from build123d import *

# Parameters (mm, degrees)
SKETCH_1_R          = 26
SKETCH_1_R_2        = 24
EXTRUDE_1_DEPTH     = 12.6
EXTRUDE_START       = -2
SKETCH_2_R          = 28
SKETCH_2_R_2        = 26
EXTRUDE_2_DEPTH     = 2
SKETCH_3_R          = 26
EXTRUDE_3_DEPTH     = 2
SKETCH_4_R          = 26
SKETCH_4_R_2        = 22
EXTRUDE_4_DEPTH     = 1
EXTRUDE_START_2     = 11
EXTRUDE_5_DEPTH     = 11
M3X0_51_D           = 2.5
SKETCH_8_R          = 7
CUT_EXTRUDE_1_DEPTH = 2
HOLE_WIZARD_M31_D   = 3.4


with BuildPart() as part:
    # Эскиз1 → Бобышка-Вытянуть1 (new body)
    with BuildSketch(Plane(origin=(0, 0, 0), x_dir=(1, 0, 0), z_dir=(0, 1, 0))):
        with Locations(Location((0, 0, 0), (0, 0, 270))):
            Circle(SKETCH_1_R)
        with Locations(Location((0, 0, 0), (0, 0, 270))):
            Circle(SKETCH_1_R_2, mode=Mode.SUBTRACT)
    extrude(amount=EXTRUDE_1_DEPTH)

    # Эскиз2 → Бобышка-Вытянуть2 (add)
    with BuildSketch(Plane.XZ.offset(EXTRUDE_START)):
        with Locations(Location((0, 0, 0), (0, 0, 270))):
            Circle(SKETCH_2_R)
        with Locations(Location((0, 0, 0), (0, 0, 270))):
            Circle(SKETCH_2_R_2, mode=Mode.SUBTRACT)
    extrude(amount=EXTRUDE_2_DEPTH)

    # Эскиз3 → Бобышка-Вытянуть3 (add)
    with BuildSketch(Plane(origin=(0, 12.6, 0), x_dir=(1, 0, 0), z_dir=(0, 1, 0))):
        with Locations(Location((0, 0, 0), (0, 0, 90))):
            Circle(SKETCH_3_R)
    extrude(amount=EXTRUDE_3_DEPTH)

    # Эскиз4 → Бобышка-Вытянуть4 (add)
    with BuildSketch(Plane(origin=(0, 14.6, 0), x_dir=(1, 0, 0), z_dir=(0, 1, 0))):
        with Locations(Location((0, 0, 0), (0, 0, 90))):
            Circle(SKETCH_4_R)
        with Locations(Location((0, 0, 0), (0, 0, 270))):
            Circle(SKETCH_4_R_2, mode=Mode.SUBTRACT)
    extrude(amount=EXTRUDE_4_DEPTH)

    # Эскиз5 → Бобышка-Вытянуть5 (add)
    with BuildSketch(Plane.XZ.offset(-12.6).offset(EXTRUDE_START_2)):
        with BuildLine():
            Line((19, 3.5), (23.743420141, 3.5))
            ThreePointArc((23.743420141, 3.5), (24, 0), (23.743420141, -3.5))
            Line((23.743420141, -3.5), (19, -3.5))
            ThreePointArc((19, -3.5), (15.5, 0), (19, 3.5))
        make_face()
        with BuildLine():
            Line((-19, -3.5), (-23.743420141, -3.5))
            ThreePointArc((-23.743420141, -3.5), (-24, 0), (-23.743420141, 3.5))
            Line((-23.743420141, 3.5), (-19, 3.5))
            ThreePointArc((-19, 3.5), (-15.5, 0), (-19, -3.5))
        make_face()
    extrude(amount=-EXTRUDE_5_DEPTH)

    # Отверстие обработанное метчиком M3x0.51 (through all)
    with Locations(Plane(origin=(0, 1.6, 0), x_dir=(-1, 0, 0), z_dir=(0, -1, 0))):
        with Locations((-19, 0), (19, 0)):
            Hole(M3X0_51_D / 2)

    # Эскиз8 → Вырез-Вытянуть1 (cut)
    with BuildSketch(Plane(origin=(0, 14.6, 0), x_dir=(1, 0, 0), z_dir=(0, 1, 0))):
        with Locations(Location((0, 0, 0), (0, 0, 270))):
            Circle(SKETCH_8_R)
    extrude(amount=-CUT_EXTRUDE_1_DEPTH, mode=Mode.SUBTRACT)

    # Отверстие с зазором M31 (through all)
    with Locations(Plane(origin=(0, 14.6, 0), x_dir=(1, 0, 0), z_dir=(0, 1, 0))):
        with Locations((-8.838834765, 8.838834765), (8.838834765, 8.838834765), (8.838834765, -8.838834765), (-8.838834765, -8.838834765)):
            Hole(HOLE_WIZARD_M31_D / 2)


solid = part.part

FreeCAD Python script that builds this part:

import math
import FreeCAD as App
import Part
import Sketcher
from FreeCAD import Vector

doc = App.newDocument("Part")
body = doc.addObject("PartDesign::Body", "Body")

# Sketch on XZ plane
sketch1 = doc.addObject("Sketcher::SketchObject", "Sketch")
body.addObject(sketch1)
sketch1.AttachmentSupport = (doc.XZ_Plane, [""])
sketch1.MapMode = "FlatFace"
sketch1.addGeometry(Part.Circle(Vector(0, 0, 0), Vector(0, 0, 1), 26), False)
sketch1.addGeometry(Part.Circle(Vector(0, 0, 0), Vector(0, 0, 1), 24), False)
sketch1.addConstraint(Sketcher.Constraint("Coincident", 0, 3, -1, 1))
sketch1.addConstraint(Sketcher.Constraint("Coincident", 1, 3, -1, 1))
sketch1.addConstraint(Sketcher.Constraint("Diameter", 0, 52.0))
sketch1.addConstraint(Sketcher.Constraint("Diameter", 1, 48.0))
pad1 = doc.addObject("PartDesign::Pad", "Pad")
body.addObject(pad1)
pad1.Profile = sketch1
pad1.Length = 12.6
pad1.Reversed = True

# Sketch on XZ plane
sketch2 = doc.addObject("Sketcher::SketchObject", "Sketch001")
body.addObject(sketch2)
sketch2.AttachmentSupport = (doc.XZ_Plane, [""])
sketch2.MapMode = "FlatFace"
sketch2.AttachmentOffset = App.Placement(Vector(0, 0, -2), App.Rotation())
sketch2.addGeometry(Part.Circle(Vector(0, 0, 0), Vector(0, 0, 1), 28), False)
sketch2.addGeometry(Part.Circle(Vector(0, 0, 0), Vector(0, 0, 1), 26), False)
sketch2.addConstraint(Sketcher.Constraint("Coincident", 0, 3, -1, 1))
sketch2.addConstraint(Sketcher.Constraint("Coincident", 1, 3, -1, 1))
sketch2.addConstraint(Sketcher.Constraint("Diameter", 0, 56.0))
sketch2.addConstraint(Sketcher.Constraint("Diameter", 1, 52.0))
pad2 = doc.addObject("PartDesign::Pad", "Pad001")
body.addObject(pad2)
pad2.Profile = sketch2
pad2.Length = 2

# Sketch on XZ plane
sketch3 = doc.addObject("Sketcher::SketchObject", "Sketch002")
body.addObject(sketch3)
sketch3.AttachmentSupport = (doc.XZ_Plane, [""])
sketch3.MapMode = "FlatFace"
sketch3.AttachmentOffset = App.Placement(Vector(0, 0, -12.6), App.Rotation())
sketch3.addGeometry(Part.Circle(Vector(0, 0, 0), Vector(0, 0, 1), 26), False)
sketch3.addConstraint(Sketcher.Constraint("Coincident", 0, 3, -1, 1))
sketch3.addConstraint(Sketcher.Constraint("Diameter", 0, 52.0))
pad3 = doc.addObject("PartDesign::Pad", "Pad002")
body.addObject(pad3)
pad3.Profile = sketch3
pad3.Length = 2
pad3.Reversed = True

# Sketch on XZ plane
sketch4 = doc.addObject("Sketcher::SketchObject", "Sketch003")
body.addObject(sketch4)
sketch4.AttachmentSupport = (doc.XZ_Plane, [""])
sketch4.MapMode = "FlatFace"
sketch4.AttachmentOffset = App.Placement(Vector(0, 0, -14.6), App.Rotation())
sketch4.addGeometry(Part.Circle(Vector(0, 0, 0), Vector(0, 0, 1), 26), False)
sketch4.addGeometry(Part.Circle(Vector(0, 0, 0), Vector(0, 0, 1), 22), False)
sketch4.addConstraint(Sketcher.Constraint("Coincident", 0, 3, -1, 1))
sketch4.addConstraint(Sketcher.Constraint("Coincident", 1, 3, -1, 1))
sketch4.addConstraint(Sketcher.Constraint("Diameter", 0, 52.0))
sketch4.addConstraint(Sketcher.Constraint("Diameter", 1, 44.0))
pad4 = doc.addObject("PartDesign::Pad", "Pad003")
body.addObject(pad4)
pad4.Profile = sketch4
pad4.Length = 1
pad4.Reversed = True

# Sketch on XZ plane
sketch5 = doc.addObject("Sketcher::SketchObject", "Sketch004")
body.addObject(sketch5)
sketch5.AttachmentSupport = (doc.XZ_Plane, [""])
sketch5.MapMode = "FlatFace"
sketch5.AttachmentOffset = App.Placement(Vector(0, 0, -1.6), App.Rotation())
sketch5.addGeometry(Part.LineSegment(Vector(23.74342, 3.5, 0), Vector(19, 3.5, 0)), False)
sketch5.addGeometry(Part.ArcOfCircle(Part.Circle(Vector(19, 0, 0), Vector(0, 0, 1), 3.5), math.radians(90), math.radians(270)), False)
sketch5.addGeometry(Part.LineSegment(Vector(19, -3.5, 0), Vector(23.74342, -3.5, 0)), False)
sketch5.addGeometry(Part.ArcOfCircle(Part.Circle(Vector(0, 0, 0), Vector(0, 0, 1), 24), math.radians(-8.385539), math.radians(8.385539)), False)
sketch5.addGeometry(Part.LineSegment(Vector(-23.74342, -3.5, 0), Vector(-19, -3.5, 0)), False)
sketch5.addGeometry(Part.ArcOfCircle(Part.Circle(Vector(-19, 0, 0), Vector(0, 0, 1), 3.5), math.radians(-90), math.radians(90)), False)
sketch5.addGeometry(Part.LineSegment(Vector(-19, 3.5, 0), Vector(-23.74342, 3.5, 0)), False)
sketch5.addGeometry(Part.ArcOfCircle(Part.Circle(Vector(0, 0, 0), Vector(0, 0, 1), 24), math.radians(171.614461), math.radians(188.385539)), False)
sketch5.addConstraint(Sketcher.Constraint("Tangent", 0, 2, 1, 1))
sketch5.addConstraint(Sketcher.Constraint("Tangent", 1, 2, 2, 1))
sketch5.addConstraint(Sketcher.Constraint("Coincident", 2, 2, 3, 1))
sketch5.addConstraint(Sketcher.Constraint("Coincident", 3, 2, 0, 1))
sketch5.addConstraint(Sketcher.Constraint("Tangent", 4, 2, 5, 1))
sketch5.addConstraint(Sketcher.Constraint("Tangent", 5, 2, 6, 1))
sketch5.addConstraint(Sketcher.Constraint("Coincident", 6, 2, 7, 1))
sketch5.addConstraint(Sketcher.Constraint("Coincident", 7, 2, 4, 1))
sketch5.addConstraint(Sketcher.Constraint("Horizontal", 0))
sketch5.addConstraint(Sketcher.Constraint("Horizontal", 2))
sketch5.addConstraint(Sketcher.Constraint("Horizontal", 4))
sketch5.addConstraint(Sketcher.Constraint("Horizontal", 6))
sketch5.addConstraint(Sketcher.Constraint("Coincident", 3, 3, -1, 1))
sketch5.addConstraint(Sketcher.Constraint("Coincident", 7, 3, -1, 1))
sketch5.addConstraint(Sketcher.Constraint("Equal", 1, 5))
sketch5.addConstraint(Sketcher.Constraint("Equal", 3, 7))
sketch5.addConstraint(Sketcher.Constraint("Symmetric", 1, 3, 5, 3, -1, 1))
sketch5.addConstraint(Sketcher.Constraint("PointOnObject", 1, 3, -1))
sketch5.addConstraint(Sketcher.Constraint("Radius", 3, 24.0))
sketch5.addConstraint(Sketcher.Constraint("Radius", 1, 3.5))
sketch5.addConstraint(Sketcher.Constraint("DistanceX", -1, 1, 1, 3, 19.0))
pad5 = doc.addObject("PartDesign::Pad", "Pad004")
body.addObject(pad5)
pad5.Profile = sketch5
pad5.Length = 11
pad5.Reversed = True

# Sketch on XZ plane
sketch6 = doc.addObject("Sketcher::SketchObject", "Sketch005")
body.addObject(sketch6)
sketch6.AttachmentSupport = (doc.XZ_Plane, [""])
sketch6.MapMode = "FlatFace"
sketch6.AttachmentOffset = App.Placement(Vector(0, 0, -1.6), App.Rotation())
sketch6.addGeometry(Part.Circle(Vector(19, 0, 0), Vector(0, 0, 1), 1.25), False)
sketch6.addGeometry(Part.Circle(Vector(-19, 0, 0), Vector(0, 0, 1), 1.25), False)
sketch6.addConstraint(Sketcher.Constraint("Equal", 0, 1))
sketch6.addConstraint(Sketcher.Constraint("Symmetric", 0, 3, 1, 3, -1, 1))
sketch6.addConstraint(Sketcher.Constraint("PointOnObject", 0, 3, -1))
sketch6.addConstraint(Sketcher.Constraint("Diameter", 0, 2.5))
sketch6.addConstraint(Sketcher.Constraint("DistanceX", -1, 1, 0, 3, 19.0))
doc.recompute()
hole = doc.addObject("PartDesign::Hole", "Hole")
body.addObject(hole)
hole.Profile = sketch6
hole.ThreadType = "None"
hole.Diameter = 2.5
hole.DepthType = "ThroughAll"

# Sketch on XZ plane
sketch7 = doc.addObject("Sketcher::SketchObject", "Sketch006")
body.addObject(sketch7)
sketch7.AttachmentSupport = (doc.XZ_Plane, [""])
sketch7.MapMode = "FlatFace"
sketch7.AttachmentOffset = App.Placement(Vector(0, 0, -14.6), App.Rotation())
sketch7.addGeometry(Part.Circle(Vector(0, 0, 0), Vector(0, 0, 1), 7), False)
sketch7.addConstraint(Sketcher.Constraint("Coincident", 0, 3, -1, 1))
sketch7.addConstraint(Sketcher.Constraint("Diameter", 0, 14.0))
pocket1 = doc.addObject("PartDesign::Pocket", "Pocket")
body.addObject(pocket1)
pocket1.Profile = sketch7
pocket1.Length = 2
pocket1.Reversed = True

# Sketch on XZ plane
sketch8 = doc.addObject("Sketcher::SketchObject", "Sketch007")
body.addObject(sketch8)
sketch8.AttachmentSupport = (doc.XZ_Plane, [""])
sketch8.MapMode = "FlatFace"
sketch8.AttachmentOffset = App.Placement(Vector(0, 0, -14.6), App.Rotation())
sketch8.addGeometry(Part.Circle(Vector(-8.838835, -8.838835, 0), Vector(0, 0, 1), 1.7), False)
sketch8.addGeometry(Part.Circle(Vector(8.838835, -8.838835, 0), Vector(0, 0, 1), 1.7), False)
sketch8.addGeometry(Part.Circle(Vector(8.838835, 8.838835, 0), Vector(0, 0, 1), 1.7), False)
sketch8.addGeometry(Part.Circle(Vector(-8.838835, 8.838835, 0), Vector(0, 0, 1), 1.7), False)
sketch8.addConstraint(Sketcher.Constraint("Equal", 0, 1))
sketch8.addConstraint(Sketcher.Constraint("Equal", 1, 2))
sketch8.addConstraint(Sketcher.Constraint("Equal", 2, 3))
sketch8.addConstraint(Sketcher.Constraint("Symmetric", 0, 3, 2, 3, -1, 1))
sketch8.addConstraint(Sketcher.Constraint("Symmetric", 1, 3, 3, 3, -1, 1))
sketch8.addConstraint(Sketcher.Constraint("Symmetric", 0, 3, 1, 3, -2))
sketch8.addConstraint(Sketcher.Constraint("Diameter", 0, 3.4))
sketch8.addConstraint(Sketcher.Constraint("DistanceX", 0, 3, 1, 3, 17.67767))
sketch8.addConstraint(Sketcher.Constraint("DistanceY", 1, 3, 2, 3, 17.67767))
doc.recompute()
hole2 = doc.addObject("PartDesign::Hole", "Hole001")
body.addObject(hole2)
hole2.Profile = sketch8
hole2.ThreadType = "None"
hole2.Diameter = 3.4
hole2.DepthType = "ThroughAll"
hole2.Reversed = True

doc.recompute()
